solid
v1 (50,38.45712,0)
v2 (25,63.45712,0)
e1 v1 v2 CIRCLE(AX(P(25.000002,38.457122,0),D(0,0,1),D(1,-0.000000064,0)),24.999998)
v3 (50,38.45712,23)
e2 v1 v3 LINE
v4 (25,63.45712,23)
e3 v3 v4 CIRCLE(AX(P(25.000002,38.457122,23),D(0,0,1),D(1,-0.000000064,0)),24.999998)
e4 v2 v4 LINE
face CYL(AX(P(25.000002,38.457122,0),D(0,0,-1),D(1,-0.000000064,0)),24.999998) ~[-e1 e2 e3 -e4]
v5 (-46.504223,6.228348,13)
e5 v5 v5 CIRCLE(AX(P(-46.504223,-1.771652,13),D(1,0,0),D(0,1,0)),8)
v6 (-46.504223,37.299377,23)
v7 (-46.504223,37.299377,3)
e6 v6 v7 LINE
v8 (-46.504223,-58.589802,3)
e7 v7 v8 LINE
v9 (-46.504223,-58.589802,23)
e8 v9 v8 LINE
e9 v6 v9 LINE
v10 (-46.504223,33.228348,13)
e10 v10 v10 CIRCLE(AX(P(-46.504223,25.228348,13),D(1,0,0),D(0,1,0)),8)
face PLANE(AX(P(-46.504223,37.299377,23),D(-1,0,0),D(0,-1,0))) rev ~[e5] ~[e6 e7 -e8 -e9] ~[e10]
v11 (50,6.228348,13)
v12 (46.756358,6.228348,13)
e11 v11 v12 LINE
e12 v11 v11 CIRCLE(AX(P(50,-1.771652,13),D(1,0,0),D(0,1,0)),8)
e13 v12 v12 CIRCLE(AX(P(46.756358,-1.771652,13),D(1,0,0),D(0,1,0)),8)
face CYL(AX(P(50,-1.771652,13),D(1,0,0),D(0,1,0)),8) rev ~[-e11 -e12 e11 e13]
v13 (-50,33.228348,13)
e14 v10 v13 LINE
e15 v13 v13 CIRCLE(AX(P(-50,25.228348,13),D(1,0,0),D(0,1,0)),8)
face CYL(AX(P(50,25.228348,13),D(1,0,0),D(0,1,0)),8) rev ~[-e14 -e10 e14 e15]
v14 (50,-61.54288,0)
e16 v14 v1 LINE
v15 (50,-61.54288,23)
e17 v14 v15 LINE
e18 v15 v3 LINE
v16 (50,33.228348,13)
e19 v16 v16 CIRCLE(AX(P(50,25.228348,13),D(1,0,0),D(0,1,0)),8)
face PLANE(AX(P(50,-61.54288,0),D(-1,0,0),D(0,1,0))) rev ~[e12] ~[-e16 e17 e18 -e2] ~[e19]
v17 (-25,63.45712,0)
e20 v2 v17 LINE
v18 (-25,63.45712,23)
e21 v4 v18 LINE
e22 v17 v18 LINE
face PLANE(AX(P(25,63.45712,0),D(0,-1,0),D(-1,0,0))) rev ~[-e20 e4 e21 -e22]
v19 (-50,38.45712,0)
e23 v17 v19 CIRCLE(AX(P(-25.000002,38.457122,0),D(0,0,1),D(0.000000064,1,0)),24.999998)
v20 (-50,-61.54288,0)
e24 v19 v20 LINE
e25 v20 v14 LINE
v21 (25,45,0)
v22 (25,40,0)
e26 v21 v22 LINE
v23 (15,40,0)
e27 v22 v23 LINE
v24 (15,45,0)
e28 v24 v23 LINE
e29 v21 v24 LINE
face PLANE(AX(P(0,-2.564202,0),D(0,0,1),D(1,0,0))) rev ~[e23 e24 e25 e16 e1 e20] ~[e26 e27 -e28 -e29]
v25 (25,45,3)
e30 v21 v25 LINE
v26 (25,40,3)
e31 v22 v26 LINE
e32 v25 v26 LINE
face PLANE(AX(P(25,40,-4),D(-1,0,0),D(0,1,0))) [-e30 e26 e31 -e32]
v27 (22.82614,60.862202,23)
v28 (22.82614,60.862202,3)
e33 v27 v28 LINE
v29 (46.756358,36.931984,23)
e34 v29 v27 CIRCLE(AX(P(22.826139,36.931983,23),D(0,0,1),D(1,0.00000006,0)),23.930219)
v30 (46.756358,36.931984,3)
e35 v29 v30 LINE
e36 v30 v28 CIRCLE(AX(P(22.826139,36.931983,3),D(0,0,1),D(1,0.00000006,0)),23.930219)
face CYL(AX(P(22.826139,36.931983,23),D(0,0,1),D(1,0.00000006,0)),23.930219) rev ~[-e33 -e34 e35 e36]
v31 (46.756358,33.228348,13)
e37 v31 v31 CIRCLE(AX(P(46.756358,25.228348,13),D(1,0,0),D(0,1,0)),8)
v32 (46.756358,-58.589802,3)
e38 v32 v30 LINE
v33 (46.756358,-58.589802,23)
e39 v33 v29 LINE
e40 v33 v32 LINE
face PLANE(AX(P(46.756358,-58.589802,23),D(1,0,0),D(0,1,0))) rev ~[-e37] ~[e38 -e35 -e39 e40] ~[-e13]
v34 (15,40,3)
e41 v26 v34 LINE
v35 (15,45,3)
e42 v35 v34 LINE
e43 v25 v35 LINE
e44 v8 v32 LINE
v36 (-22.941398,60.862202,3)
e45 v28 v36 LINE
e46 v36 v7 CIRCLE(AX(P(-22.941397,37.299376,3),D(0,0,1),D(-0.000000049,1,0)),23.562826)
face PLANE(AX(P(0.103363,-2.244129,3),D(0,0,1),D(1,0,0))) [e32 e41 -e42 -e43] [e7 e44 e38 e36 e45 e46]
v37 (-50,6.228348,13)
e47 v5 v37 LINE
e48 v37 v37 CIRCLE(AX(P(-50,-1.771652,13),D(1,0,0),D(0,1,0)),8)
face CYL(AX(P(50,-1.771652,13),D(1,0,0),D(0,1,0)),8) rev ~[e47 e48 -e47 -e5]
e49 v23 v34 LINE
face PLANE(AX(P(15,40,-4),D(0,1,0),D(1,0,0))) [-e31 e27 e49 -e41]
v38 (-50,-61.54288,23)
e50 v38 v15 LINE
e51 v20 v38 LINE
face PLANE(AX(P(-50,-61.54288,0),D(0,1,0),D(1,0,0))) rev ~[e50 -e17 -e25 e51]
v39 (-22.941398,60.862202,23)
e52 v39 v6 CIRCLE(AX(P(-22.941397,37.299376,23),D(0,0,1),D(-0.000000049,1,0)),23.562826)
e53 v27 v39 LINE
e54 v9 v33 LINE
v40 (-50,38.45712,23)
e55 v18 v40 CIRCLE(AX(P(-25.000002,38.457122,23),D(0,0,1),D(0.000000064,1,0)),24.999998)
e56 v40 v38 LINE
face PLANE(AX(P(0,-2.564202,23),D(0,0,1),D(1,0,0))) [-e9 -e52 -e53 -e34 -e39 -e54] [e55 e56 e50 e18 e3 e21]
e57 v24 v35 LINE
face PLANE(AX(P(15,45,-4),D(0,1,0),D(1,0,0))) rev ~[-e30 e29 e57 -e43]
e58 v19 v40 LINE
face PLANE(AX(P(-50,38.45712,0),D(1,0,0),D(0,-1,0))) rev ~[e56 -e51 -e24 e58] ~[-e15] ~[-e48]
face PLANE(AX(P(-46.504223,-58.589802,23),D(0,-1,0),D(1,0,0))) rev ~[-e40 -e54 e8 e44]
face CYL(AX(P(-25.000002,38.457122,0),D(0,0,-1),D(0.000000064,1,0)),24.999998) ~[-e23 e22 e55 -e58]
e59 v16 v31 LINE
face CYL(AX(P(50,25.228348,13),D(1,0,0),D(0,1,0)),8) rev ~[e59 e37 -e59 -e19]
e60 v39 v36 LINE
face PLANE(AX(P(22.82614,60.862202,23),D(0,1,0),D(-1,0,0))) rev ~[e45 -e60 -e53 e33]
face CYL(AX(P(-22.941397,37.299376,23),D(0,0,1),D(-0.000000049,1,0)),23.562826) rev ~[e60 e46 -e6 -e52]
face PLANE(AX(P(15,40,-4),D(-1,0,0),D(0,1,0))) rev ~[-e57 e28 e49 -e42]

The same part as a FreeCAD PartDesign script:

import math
import FreeCAD as App
import Part
import Sketcher
from FreeCAD import Vector


def add_polygon(sketch, points):
    """Adds a closed chain of lines whose ends are joined by coincident constraints."""
    first, n = sketch.GeometryCount, len(points)
    for a, b in zip(points, points[1:] + points[:1]):
        sketch.addGeometry(Part.LineSegment(App.Vector(*a, 0), App.Vector(*b, 0)), False)
    for i in range(n):
        sketch.addConstraint(Sketcher.Constraint("Coincident", first + i, 2, first + (i + 1) % n, 1))

doc = App.newDocument("Part")
params = doc.addObject("Spreadsheet::Sheet", "Params")
for row, (alias, value) in enumerate([
    ("sketch1_width", "10 mm"),
    ("sketch1_height", "5 mm"),
    ("pad1_length", "10 mm"),
    ("sketch2_radius", "24.999998 mm"),
    ("sketch2_width", "100 mm"),
    ("pad2_length", "23 mm"),
    ("pocket1_length", "20 mm"),
    ("sketch4_diameter", "16 mm"),
], start=1):
    params.set(f"A{row}", alias)
    params.set(f"B{row}", "=" + value)
    params.setAlias(f"B{row}", alias)

body = doc.addObject("PartDesign::Body", "Body")

# Sketch on XY plane
sketch1 = body.newObject("Sketcher::SketchObject", "Sketch")
sketch1.AttachmentSupport = (doc.getObject("XY_Plane"), [""])
sketch1.MapMode = "FlatFace"
sketch1.AttachmentOffset = App.Placement(Vector(0, 0, -4), App.Rotation())
add_polygon(sketch1, [(15, 45), (15, 40), (25, 40), (25, 45)])  # lines 0-3
sketch1.addConstraint(Sketcher.Constraint("Vertical", 0))
sketch1.addConstraint(Sketcher.Constraint("Horizontal", 1))
sketch1.addConstraint(Sketcher.Constraint("Vertical", 2))
sketch1.addConstraint(Sketcher.Constraint("Horizontal", 3))
sketch1.addConstraint(Sketcher.Constraint("DistanceX", 1, 1, 1, 2, 10.0))
sketch1.addConstraint(Sketcher.Constraint("DistanceY", 0, 2, 0, 1, 5.0))
sketch1.addConstraint(Sketcher.Constraint("DistanceX", -1, 1, 0, 2, 15.0))
sketch1.addConstraint(Sketcher.Constraint("DistanceY", -1, 1, 0, 2, 40.0))
sketch1.setExpression("Constraints[8]", "Params.sketch1_width")
sketch1.setExpression("Constraints[9]", "Params.sketch1_height")
pad1 = body.newObject("PartDesign::Pad", "Pad")
pad1.Profile = sketch1
pad1.setExpression("Length", "Params.pad1_length")
body2 = doc.addObject("PartDesign::Body", "Body001")

# Sketch on XY plane
sketch2 = body2.newObject("Sketcher::SketchObject", "Sketch001")
sketch2.AttachmentSupport = (doc.getObject("XY_Plane001"), [""])
sketch2.MapMode = "FlatFace"
sketch2.addGeometry(Part.LineSegment(Vector(-50, 38, 0), Vector(-50, -62, 0)), False)
sketch2.addGeometry(Part.LineSegment(Vector(-50, -62, 0), Vector(50, -62, 0)), False)
sketch2.addGeometry(Part.LineSegment(Vector(50, -62, 0), Vector(50, 38, 0)), False)
sketch2.addGeometry(Part.ArcOfCircle(Part.Circle(Vector(25, 38, 0), Vector(0, 0, 1), 25), math.radians(0), math.radians(90)), False)
sketch2.addGeometry(Part.LineSegment(Vector(25, 63, 0), Vector(-25, 63, 0)), False)
sketch2.addGeometry(Part.ArcOfCircle(Part.Circle(Vector(-25, 38, 0), Vector(0, 0, 1), 25), math.radians(90), math.radians(180)), False)
sketch2.addConstraint(Sketcher.Constraint("Coincident", 0, 2, 1, 1))
sketch2.addConstraint(Sketcher.Constraint("Coincident", 1, 2, 2, 1))
sketch2.addConstraint(Sketcher.Constraint("Tangent", 2, 2, 3, 1))
sketch2.addConstraint(Sketcher.Constraint("Tangent", 3, 2, 4, 1))
sketch2.addConstraint(Sketcher.Constraint("Tangent", 4, 2, 5, 1))
sketch2.addConstraint(Sketcher.Constraint("Tangent", 5, 2, 0, 1))
sketch2.addConstraint(Sketcher.Constraint("Vertical", 0))
sketch2.addConstraint(Sketcher.Constraint("Horizontal", 1))
sketch2.addConstraint(Sketcher.Constraint("Vertical", 2))
sketch2.addConstraint(Sketcher.Constraint("Horizontal", 4))
sketch2.addConstraint(Sketcher.Constraint("Equal", 3, 5))
sketch2.addConstraint(Sketcher.Constraint("Equal", 1, 0))
sketch2.addConstraint(Sketcher.Constraint("Radius", 3, 24.999998))
sketch2.addConstraint(Sketcher.Constraint("DistanceX", 1, 1, 1, 2, 100.0))
sketch2.addConstraint(Sketcher.Constraint("DistanceX", -1, 1, 3, 3, 25.000002))
sketch2.addConstraint(Sketcher.Constraint("DistanceY", -1, 1, 3, 3, 38.457122))
sketch2.setExpression("Constraints[12]", "Params.sketch2_radius")
sketch2.setExpression("Constraints[13]", "Params.sketch2_width")
pad2 = body2.newObject("PartDesign::Pad", "Pad001")
pad2.Profile = sketch2
pad2.setExpression("Length", "Params.pad2_length")

# Sketch on XY plane
sketch3 = body2.newObject("Sketcher::SketchObject", "Sketch002")
sketch3.AttachmentSupport = (doc.getObject("XY_Plane001"), [""])
sketch3.MapMode = "FlatFace"
sketch3.AttachmentOffset = App.Placement(Vector(0, 0, 23), App.Rotation())
sketch3.addGeometry(Part.LineSegment(Vector(-47, 37, 0), Vector(-47, -59, 0)), False)
sketch3.addGeometry(Part.LineSegment(Vector(-47, -59, 0), Vector(47, -59, 0)), False)
sketch3.addGeometry(Part.LineSegment(Vector(47, -59, 0), Vector(47, 37, 0)), False)
sketch3.addGeometry(Part.ArcOfCircle(Part.Circle(Vector(23, 37, 0), Vector(0, 0, 1), 24), math.radians(0), math.radians(90)), False)
sketch3.addGeometry(Part.LineSegment(Vector(23, 61, 0), Vector(-23, 61, 0)), False)
sketch3.addGeometry(Part.ArcOfCircle(Part.Circle(Vector(-23, 37, 0), Vector(0, 0, 1), 24), math.radians(90), math.radians(180)), False)
sketch3.addConstraint(Sketcher.Constraint("Coincident", 0, 2, 1, 1))
sketch3.addConstraint(Sketcher.Constraint("Coincident", 1, 2, 2, 1))
sketch3.addConstraint(Sketcher.Constraint("Tangent", 2, 2, 3, 1))
sketch3.addConstraint(Sketcher.Constraint("Tangent", 3, 2, 4, 1))
sketch3.addConstraint(Sketcher.Constraint("Tangent", 4, 2, 5, 1))
sketch3.addConstraint(Sketcher.Constraint("Tangent", 5, 2, 0, 1))
sketch3.addConstraint(Sketcher.Constraint("Vertical", 0))
sketch3.addConstraint(Sketcher.Constraint("Horizontal", 1))
sketch3.addConstraint(Sketcher.Constraint("Vertical", 2))
sketch3.addConstraint(Sketcher.Constraint("Horizontal", 4))
sketch3.addConstraint(Sketcher.Constraint("Radius", 3, 23.930219))
sketch3.addConstraint(Sketcher.Constraint("Radius", 5, 23.562826))
sketch3.addConstraint(Sketcher.Constraint("DistanceX", 1, 1, 1, 2, 93.260581))
sketch3.addConstraint(Sketcher.Constraint("DistanceY", 0, 2, 0, 1, 95.889179))
sketch3.addConstraint(Sketcher.Constraint("DistanceY", -1, 1, 3, 2, 60.862202))
sketch3.addConstraint(Sketcher.Constraint("DistanceX", -1, 1, 3, 3, 22.826139))
pocket1 = body2.newObject("PartDesign::Pocket", "Pocket")
pocket1.Profile = sketch3
pocket1.setExpression("Length", "Params.pocket1_length")

# Sketch on YZ plane
sketch4 = body2.newObject("Sketcher::SketchObject", "Sketch003")
sketch4.AttachmentSupport = (doc.getObject("YZ_Plane001"), [""])
sketch4.MapMode = "FlatFace"
sketch4.AttachmentOffset = App.Placement(Vector(0, 0, 50), App.Rotation())
sketch4.addGeometry(Part.Circle(Vector(-2, 13, 0), Vector(0, 0, 1), 8), False)
sketch4.addGeometry(Part.Circle(Vector(25, 13, 0), Vector(0, 0, 1), 8), False)
sketch4.addConstraint(Sketcher.Constraint("Equal", 0, 1))
sketch4.addConstraint(Sketcher.Constraint("Horizontal", 0, 3, 1, 3))
sketch4.addConstraint(Sketcher.Constraint("Diameter", 0, 16.0))
sketch4.addConstraint(Sketcher.Constraint("DistanceY", -1, 1, 0, 3, 13.0))
sketch4.addConstraint(Sketcher.Constraint("DistanceX", 0, 3, 1, 3, 27.0))
sketch4.addConstraint(Sketcher.Constraint("DistanceX", -1, 1, 1, 3, 25.228348))
sketch4.setExpression("Constraints[2]", "Params.sketch4_diameter")
pocket2 = body2.newObject("PartDesign::Pocket", "Pocket001")
pocket2.Profile = sketch4
pocket2.Type = "ThroughAll"
doc.recompute()

boolean = body2.newObject("PartDesign::Boolean", "Boolean")
boolean.Type = "Cut"
boolean.addObjects([body])

doc.recompute()
